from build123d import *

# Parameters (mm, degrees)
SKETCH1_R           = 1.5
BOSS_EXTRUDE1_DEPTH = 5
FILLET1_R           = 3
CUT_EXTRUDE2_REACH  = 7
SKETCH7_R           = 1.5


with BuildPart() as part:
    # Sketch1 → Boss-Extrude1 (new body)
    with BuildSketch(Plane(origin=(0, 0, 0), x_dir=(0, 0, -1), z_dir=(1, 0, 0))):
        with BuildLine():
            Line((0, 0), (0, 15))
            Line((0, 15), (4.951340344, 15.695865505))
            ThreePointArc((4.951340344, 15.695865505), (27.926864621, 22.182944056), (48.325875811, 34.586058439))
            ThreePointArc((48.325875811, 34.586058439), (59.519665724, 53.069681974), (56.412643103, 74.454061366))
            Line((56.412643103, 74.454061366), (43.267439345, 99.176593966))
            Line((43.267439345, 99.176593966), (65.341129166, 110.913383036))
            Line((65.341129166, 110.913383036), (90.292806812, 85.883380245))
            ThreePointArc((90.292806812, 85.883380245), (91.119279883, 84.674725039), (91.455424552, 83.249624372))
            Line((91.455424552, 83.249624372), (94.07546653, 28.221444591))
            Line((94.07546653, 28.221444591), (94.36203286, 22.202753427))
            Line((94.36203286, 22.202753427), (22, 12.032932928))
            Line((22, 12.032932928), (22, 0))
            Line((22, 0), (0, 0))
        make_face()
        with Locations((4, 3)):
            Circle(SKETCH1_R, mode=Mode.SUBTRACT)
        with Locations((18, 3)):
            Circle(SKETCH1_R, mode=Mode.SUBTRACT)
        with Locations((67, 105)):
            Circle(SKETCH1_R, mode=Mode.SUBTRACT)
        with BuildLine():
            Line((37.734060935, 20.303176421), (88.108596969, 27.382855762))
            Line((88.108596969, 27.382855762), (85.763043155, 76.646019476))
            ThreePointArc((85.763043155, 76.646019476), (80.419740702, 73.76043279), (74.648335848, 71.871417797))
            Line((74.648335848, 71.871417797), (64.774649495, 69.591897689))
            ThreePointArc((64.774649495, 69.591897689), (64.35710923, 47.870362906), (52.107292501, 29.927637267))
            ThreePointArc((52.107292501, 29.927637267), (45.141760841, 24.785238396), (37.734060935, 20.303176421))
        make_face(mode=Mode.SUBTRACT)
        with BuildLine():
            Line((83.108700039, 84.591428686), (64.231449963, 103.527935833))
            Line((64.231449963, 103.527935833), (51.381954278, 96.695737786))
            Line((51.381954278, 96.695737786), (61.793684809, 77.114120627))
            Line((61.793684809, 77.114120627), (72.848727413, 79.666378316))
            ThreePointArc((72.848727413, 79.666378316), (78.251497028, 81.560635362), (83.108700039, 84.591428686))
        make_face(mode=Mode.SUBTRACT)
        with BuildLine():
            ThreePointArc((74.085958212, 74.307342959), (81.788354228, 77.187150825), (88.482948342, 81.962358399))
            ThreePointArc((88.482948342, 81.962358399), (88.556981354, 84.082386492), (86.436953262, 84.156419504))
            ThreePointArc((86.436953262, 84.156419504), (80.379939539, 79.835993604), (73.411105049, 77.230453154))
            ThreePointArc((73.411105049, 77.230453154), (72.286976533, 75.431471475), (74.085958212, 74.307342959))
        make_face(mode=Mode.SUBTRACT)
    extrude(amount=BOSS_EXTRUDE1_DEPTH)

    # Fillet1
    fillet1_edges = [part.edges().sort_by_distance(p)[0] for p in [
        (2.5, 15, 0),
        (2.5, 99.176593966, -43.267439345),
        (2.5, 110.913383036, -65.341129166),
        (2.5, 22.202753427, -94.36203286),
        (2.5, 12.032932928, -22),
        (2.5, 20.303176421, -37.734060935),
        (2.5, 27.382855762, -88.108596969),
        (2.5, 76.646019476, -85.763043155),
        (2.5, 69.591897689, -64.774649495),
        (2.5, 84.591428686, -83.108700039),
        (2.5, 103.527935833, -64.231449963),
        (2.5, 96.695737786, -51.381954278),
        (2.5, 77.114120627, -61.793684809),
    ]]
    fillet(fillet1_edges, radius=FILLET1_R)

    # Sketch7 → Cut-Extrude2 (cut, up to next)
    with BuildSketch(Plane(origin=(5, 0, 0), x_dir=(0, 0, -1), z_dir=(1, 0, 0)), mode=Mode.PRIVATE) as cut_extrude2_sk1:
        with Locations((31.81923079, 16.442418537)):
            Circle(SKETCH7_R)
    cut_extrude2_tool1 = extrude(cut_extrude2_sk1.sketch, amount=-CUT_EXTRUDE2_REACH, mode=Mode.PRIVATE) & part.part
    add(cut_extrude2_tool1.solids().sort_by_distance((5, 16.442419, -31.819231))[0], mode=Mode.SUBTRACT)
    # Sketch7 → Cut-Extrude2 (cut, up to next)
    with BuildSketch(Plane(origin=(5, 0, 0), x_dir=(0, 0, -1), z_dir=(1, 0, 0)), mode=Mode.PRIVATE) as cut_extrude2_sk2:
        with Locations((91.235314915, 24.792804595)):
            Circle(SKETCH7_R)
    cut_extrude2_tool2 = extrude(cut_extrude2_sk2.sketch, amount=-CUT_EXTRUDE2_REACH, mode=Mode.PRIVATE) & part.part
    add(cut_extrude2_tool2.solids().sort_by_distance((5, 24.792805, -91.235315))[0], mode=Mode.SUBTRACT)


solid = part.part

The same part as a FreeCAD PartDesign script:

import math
import FreeCAD as App
import Part
import Sketcher
Q = App.Units.Quantity


def edges_at(feature, points):
    """Names of the edges that pass closest to the given points."""
    edges = feature.Shape.Edges
    near = lambda p: min(range(len(edges)), key=lambda i: edges[i].distToShape(Part.Vertex(*p))[0])
    return sorted({f"Edge{near(p) + 1}" for p in points})

doc = App.newDocument("Part")
body = doc.addObject("PartDesign::Body", "Body")

sketch1 = body.newObject("Sketcher::SketchObject", "Sketch")
sketch1.AttachmentSupport = (doc.getObject("YZ_Plane"), [""])
sketch1.MapMode = "FlatFace"
sketch1.addGeometry(Part.LineSegment(App.Vector(15, 0, 0), App.Vector(0, 0, 0)), False)
sketch1.addGeometry(Part.LineSegment(App.Vector(0, 0, 0), App.Vector(0, -22, 0)), False)
sketch1.addGeometry(Part.LineSegment(App.Vector(0, -22, 0), App.Vector(12, -22, 0)), False)
sketch1.addGeometry(Part.LineSegment(App.Vector(12, -22, 0), App.Vector(22.2, -94.4, 0)), False)
sketch1.addGeometry(Part.LineSegment(App.Vector(22.2, -94.4, 0), App.Vector(28.2, -94.1, 0)), False)
sketch1.addGeometry(Part.LineSegment(App.Vector(28.2, -94.1, 0), App.Vector(83.2, -91.5, 0)), False)
sketch1.addGeometry(Part.ArcOfCircle(Part.Circle(App.Vector(83.1, -87.5, 0), App.Vector(0, 0, 1), 4), math.radians(-87), math.radians(-45)), False)
sketch1.addGeometry(Part.LineSegment(App.Vector(85.9, -90.3, 0), App.Vector(110.9, -65.3, 0)), False)
sketch1.addGeometry(Part.LineSegment(App.Vector(110.9, -65.3, 0), App.Vector(99.2, -43.3, 0)), False)
sketch1.addGeometry(Part.LineSegment(App.Vector(99.2, -43.3, 0), App.Vector(74.5, -56.4, 0)), False)
sketch1.addGeometry(Part.ArcOfCircle(Part.Circle(App.Vector(59.4, -28.2, 0), App.Vector(0, 0, 1), 32), math.radians(-141), math.radians(-62)), False)
sketch1.addGeometry(Part.ArcOfCircle(Part.Circle(App.Vector(103.2, 7.3, 0), App.Vector(0, 0, 1), 88.3), math.radians(-172), math.radians(-141)), False)
sketch1.addGeometry(Part.LineSegment(App.Vector(15.7, -5, 0), App.Vector(15, 0, 0)), False)
sketch1.addGeometry(Part.ArcOfCircle(Part.Circle(App.Vector(103.2, 7.3, 0), App.Vector(0, 0, 1), 94.3), math.radians(-151.45), math.radians(-140.93)), False)
sketch1.addGeometry(Part.ArcOfCircle(Part.Circle(App.Vector(59.4, -28.2, 0), App.Vector(0, 0, 1), 38), math.radians(-141), math.radians(-74)), False)
sketch1.addGeometry(Part.LineSegment(App.Vector(69.6, -64.8, 0), App.Vector(71.9, -74.6, 0)), False)
sketch1.addGeometry(Part.ArcOfCircle(Part.Circle(App.Vector(105, -67, 0), App.Vector(0, 0, 1), 34), math.radians(-167), math.radians(-147)), False)
sketch1.addGeometry(Part.LineSegment(App.Vector(76.6, -85.8, 0), App.Vector(27.4, -88.1, 0)), False)
sketch1.addGeometry(Part.LineSegment(App.Vector(27.4, -88.1, 0), App.Vector(20.3, -37.7, 0)), False)
sketch1.addGeometry(Part.Circle(App.Vector(3, -18, 0), App.Vector(0, 0, 1), 1.5), False)
sketch1.addGeometry(Part.Circle(App.Vector(3, -4, 0), App.Vector(0, 0, 1), 1.5), False)
sketch1.addGeometry(Part.ArcOfCircle(Part.Circle(App.Vector(75.8, -73.7, 0), App.Vector(0, 0, 1), 1.5), math.radians(13), math.radians(193)), False)
sketch1.addGeometry(Part.ArcOfCircle(Part.Circle(App.Vector(105, -67, 0), App.Vector(0, 0, 1), 28.5), math.radians(-167), math.radians(-137)), False)
sketch1.addGeometry(Part.ArcOfCircle(Part.Circle(App.Vector(83.1, -87.5, 0), App.Vector(0, 0, 1), 1.5), math.radians(-137), math.radians(43)), False)
sketch1.addGeometry(Part.ArcOfCircle(Part.Circle(App.Vector(105, -67, 0), App.Vector(0, 0, 1), 31.5), math.radians(-167), math.radians(-137)), False)
sketch1.addGeometry(Part.ArcOfCircle(Part.Circle(App.Vector(105, -67, 0), App.Vector(0, 0, 1), 26), math.radians(-167), math.radians(-142)), False)
sketch1.addGeometry(Part.LineSegment(App.Vector(79.7, -72.8, 0), App.Vector(77.1, -61.8, 0)), False)
sketch1.addGeometry(Part.LineSegment(App.Vector(77.1, -61.8, 0), App.Vector(96.7, -51.4, 0)), False)
sketch1.addGeometry(Part.LineSegment(App.Vector(96.7, -51.4, 0), App.Vector(103.5, -64.2, 0)), False)
sketch1.addGeometry(Part.LineSegment(App.Vector(103.5, -64.2, 0), App.Vector(84.6, -83.1, 0)), False)
sketch1.addGeometry(Part.Circle(App.Vector(105, -67, 0), App.Vector(0, 0, 1), 1.5), False)
sketch1.addConstraint(Sketcher.Constraint("Coincident", 0, 2, 1, 1))
sketch1.addConstraint(Sketcher.Constraint("Coincident", 1, 2, 2, 1))
sketch1.addConstraint(Sketcher.Constraint("Coincident", 2, 2, 3, 1))
sketch1.addConstraint(Sketcher.Constraint("Coincident", 3, 2, 4, 1))
sketch1.addConstraint(Sketcher.Constraint("Coincident", 4, 2, 5, 1))
sketch1.addConstraint(Sketcher.Constraint("Tangent", 5, 2, 6, 1))
sketch1.addConstraint(Sketcher.Constraint("Tangent", 6, 2, 7, 1))
sketch1.addConstraint(Sketcher.Constraint("Coincident", 7, 2, 8, 1))
sketch1.addConstraint(Sketcher.Constraint("Coincident", 8, 2, 9, 1))
sketch1.addConstraint(Sketcher.Constraint("Tangent", 9, 2, 10, 2))
sketch1.addConstraint(Sketcher.Constraint("Tangent", 10, 1, 11, 2))
sketch1.addConstraint(Sketcher.Constraint("Tangent", 11, 1, 12, 1))
sketch1.addConstraint(Sketcher.Constraint("Coincident", 12, 2, 0, 1))
sketch1.addConstraint(Sketcher.Constraint("Tangent", 13, 2, 14, 1))
sketch1.addConstraint(Sketcher.Constraint("Coincident", 14, 2, 15, 1))
sketch1.addConstraint(Sketcher.Constraint("Tangent", 15, 2, 16, 1))
sketch1.addConstraint(Sketcher.Constraint("Coincident", 16, 2, 17, 1))
sketch1.addConstraint(Sketcher.Constraint("Coincident", 17, 2, 18, 1))
sketch1.addConstraint(Sketcher.Constraint("Coincident", 18, 2, 13, 1))
sketch1.addConstraint(Sketcher.Constraint("Tangent", 21, 1, 22, 1))
sketch1.addConstraint(Sketcher.Constraint("Tangent", 22, 2, 23, 2))
sketch1.addConstraint(Sketcher.Constraint("Tangent", 23, 1, 24, 2))
sketch1.addConstraint(Sketcher.Constraint("Tangent", 24, 1, 21, 2))
sketch1.addConstraint(Sketcher.Constraint("Tangent", 25, 1, 26, 1))
sketch1.addConstraint(Sketcher.Constraint("Coincident", 26, 2, 27, 1))
sketch1.addConstraint(Sketcher.Constraint("Coincident", 27, 2, 28, 1))
sketch1.addConstraint(Sketcher.Constraint("Coincident", 28, 2, 29, 1))
sketch1.addConstraint(Sketcher.Constraint("Coincident", 29, 2, 25, 2))
sketch1.addConstraint(Sketcher.Constraint("Horizontal", 0))
sketch1.addConstraint(Sketcher.Constraint("Vertical", 1))
sketch1.addConstraint(Sketcher.Constraint("Horizontal", 2))
sketch1.addConstraint(Sketcher.Constraint("Coincident", 0, 2, -1, 1))
sketch1.addConstraint(Sketcher.Constraint("Coincident", 13, 3, 11, 3))
sketch1.addConstraint(Sketcher.Constraint("Coincident", 14, 3, 10, 3))
sketch1.addConstraint(Sketcher.Constraint("Coincident", 22, 3, 16, 3))
sketch1.addConstraint(Sketcher.Constraint("Coincident", 23, 3, 6, 3))
sketch1.addConstraint(Sketcher.Constraint("Coincident", 24, 3, 16, 3))
sketch1.addConstraint(Sketcher.Constraint("Coincident", 25, 3, 16, 3))
sketch1.addConstraint(Sketcher.Constraint("Coincident", 30, 3, 16, 3))
sketch1.addConstraint(Sketcher.Constraint("Equal", 19, 20))
sketch1.addConstraint(Sketcher.Constraint("Equal", 20, 21))
sketch1.addConstraint(Sketcher.Constraint("Equal", 23, 30))
sketch1.addConstraint(Sketcher.Constraint("Parallel", 4, 5))
sketch1.addConstraint(Sketcher.Constraint("Perpendicular", 8, 9))
sketch1.addConstraint(Sketcher.Constraint("Parallel", 3, 12))
sketch1.addConstraint(Sketcher.Constraint("Parallel", 5, 17))
sketch1.addConstraint(Sketcher.Constraint("Parallel", 12, 18))
sketch1.addConstraint(Sketcher.Constraint("Parallel", 15, 26))
sketch1.addConstraint(Sketcher.Constraint("Parallel", 9, 27))
sketch1.addConstraint(Sketcher.Constraint("Perpendicular", 27, 28))
sketch1.addConstraint(Sketcher.Constraint("Parallel", 7, 29))
sketch1.addConstraint(Sketcher.Constraint("Vertical", 19, 3, 20, 3))
sketch1.addConstraint(Sketcher.Constraint("Diameter", 19, Q("3 mm")))
sketch1.addConstraint(Sketcher.Constraint("Radius", 6, Q("4 mm")))
sketch1.addConstraint(Sketcher.Constraint("Radius", 10, Q("32 mm")))
sketch1.addConstraint(Sketcher.Constraint("Radius", 14, Q("38 mm")))
sketch1.addConstraint(Sketcher.Constraint("Radius", 16, Q("34 mm")))
sketch1.addConstraint(Sketcher.Constraint("Radius", 25, Q("26 mm")))
sketch1.addConstraint(Sketcher.Constraint("Radius", 22, Q("28.5 mm")))
sketch1.addConstraint(Sketcher.Constraint("DistanceX", 0, 2, 0, 1, Q("15 mm")))
sketch1.addConstraint(Sketcher.Constraint("DistanceY", 1, 2, 1, 1, Q("22 mm")))
sketch1.addConstraint(Sketcher.Constraint("Angle", 3, Q("-82 deg")))
sketch1.addConstraint(Sketcher.Constraint("Angle", 8, Q("118 deg")))
sketch1.addConstraint(Sketcher.Constraint("Angle", 15, Q("-77 deg")))
sketch1.addConstraint(Sketcher.Constraint("Distance", 8, Q("25 mm")))
sketch1.addConstraint(Sketcher.Constraint("Distance", 9, Q("28 mm")))
sketch1.addConstraint(Sketcher.Constraint("Distance", 12, Q("5 mm")))
sketch1.addConstraint(Sketcher.Constraint("DistanceX", -1, 1, 16, 3, Q("105 mm")))
sketch1.addConstraint(Sketcher.Constraint("DistanceY", 16, 3, -1, 1, Q("67 mm")))
sketch1.addConstraint(Sketcher.Constraint("DistanceX", -1, 1, 19, 3, Q("3 mm")))
sketch1.addConstraint(Sketcher.Constraint("DistanceY", 19, 3, -1, 1, Q("18 mm")))
sketch1.addConstraint(Sketcher.Constraint("DistanceY", 20, 3, -1, 1, Q("4 mm")))
sketch1.addConstraint(Sketcher.Constraint("Radius", 11, Q("88.32784 mm")))
sketch1.addConstraint(Sketcher.Constraint("DistanceX", 14, 2, 21, 3, Q("6.177 mm")))
sketch1.addConstraint(Sketcher.Constraint("DistanceX", -1, 1, 21, 3, Q("75.768898 mm")))
sketch1.addConstraint(Sketcher.Constraint("DistanceY", 29, 2, -1, 1, Q("83.1087 mm")))
sketch1.addConstraint(Sketcher.Constraint("DistanceY", 3, 2, 21, 3, Q("20.613501 mm")))
sketch1.addConstraint(Sketcher.Constraint("DistanceY", 6, 3, 14, 2, Q("22.685301 mm")))
sketch1.addConstraint(Sketcher.Constraint("DistanceX", 16, 2, 22, 2, Q("7.5104 mm")))
sketch1.addConstraint(Sketcher.Constraint("Distance", 4, Q("6.025509 mm")))
sketch1.addConstraint(Sketcher.Constraint("Distance", 5, Q("55.090518 mm")))
sketch1.addConstraint(Sketcher.Constraint("Distance", 17, Q("49.318971 mm")))
sketch1.addConstraint(Sketcher.Constraint("DistanceX", -1, 1, 26, 2, Q("77.114121 mm")))
sketch1.addConstraint(Sketcher.Constraint("DistanceY", 28, 2, -1, 1, Q("64.23145 mm")))
pad1 = body.newObject("PartDesign::Pad", "Pad")
pad1.Profile = sketch1
pad1.Length = 5
doc.recompute()

fillet = body.newObject("PartDesign::Fillet", "Fillet")
fillet.Base = (pad1, edges_at(pad1, [
    (2.5, 15, 0),
    (2.5, 99.177, -43.267),
    (2.5, 110.913, -65.341),
    (2.5, 22.203, -94.362),
    (2.5, 12.033, -22),
    (2.5, 20.303, -37.734),
    (2.5, 27.383, -88.109),
    (2.5, 76.646, -85.763),
    (2.5, 69.592, -64.775),
    (2.5, 84.591, -83.109),
    (2.5, 103.528, -64.231),
    (2.5, 96.696, -51.382),
    (2.5, 77.114, -61.794),
]))
fillet.Radius = 3

sketch2 = body.newObject("Sketcher::SketchObject", "Sketch001")
sketch2.AttachmentSupport = (doc.getObject("YZ_Plane"), [""])
sketch2.MapMode = "FlatFace"
sketch2.AttachmentOffset = App.Placement(App.Vector(0, 0, 5), App.Rotation())
sketch2.addGeometry(Part.Circle(App.Vector(16.4, -31.8, 0), App.Vector(0, 0, 1), 1.5), False)
sketch2.addConstraint(Sketcher.Constraint("Diameter", 0, Q("3 mm")))
sketch2.addConstraint(Sketcher.Constraint("DistanceX", -1, 1, 0, 3, Q("16.442419 mm")))
sketch2.addConstraint(Sketcher.Constraint("DistanceY", 0, 3, -1, 1, Q("31.819231 mm")))
pocket1 = body.newObject("PartDesign::Pocket", "Pocket")
pocket1.Profile = sketch2
pocket1.Type = "UpToFirst"

sketch3 = body.newObject("Sketcher::SketchObject", "Sketch002")
sketch3.AttachmentSupport = (doc.getObject("YZ_Plane"), [""])
sketch3.MapMode = "FlatFace"
sketch3.AttachmentOffset = App.Placement(App.Vector(0, 0, 5), App.Rotation())
sketch3.addGeometry(Part.Circle(App.Vector(24.8, -91.2, 0), App.Vector(0, 0, 1), 1.5), False)
sketch3.addConstraint(Sketcher.Constraint("Diameter", 0, Q("3 mm")))
sketch3.addConstraint(Sketcher.Constraint("DistanceX", -1, 1, 0, 3, Q("24.792805 mm")))
sketch3.addConstraint(Sketcher.Constraint("DistanceY", 0, 3, -1, 1, Q("91.235315 mm")))
pocket2 = body.newObject("PartDesign::Pocket", "Pocket001")
pocket2.Profile = sketch3
pocket2.Type = "UpToFirst"

doc.recompute()
